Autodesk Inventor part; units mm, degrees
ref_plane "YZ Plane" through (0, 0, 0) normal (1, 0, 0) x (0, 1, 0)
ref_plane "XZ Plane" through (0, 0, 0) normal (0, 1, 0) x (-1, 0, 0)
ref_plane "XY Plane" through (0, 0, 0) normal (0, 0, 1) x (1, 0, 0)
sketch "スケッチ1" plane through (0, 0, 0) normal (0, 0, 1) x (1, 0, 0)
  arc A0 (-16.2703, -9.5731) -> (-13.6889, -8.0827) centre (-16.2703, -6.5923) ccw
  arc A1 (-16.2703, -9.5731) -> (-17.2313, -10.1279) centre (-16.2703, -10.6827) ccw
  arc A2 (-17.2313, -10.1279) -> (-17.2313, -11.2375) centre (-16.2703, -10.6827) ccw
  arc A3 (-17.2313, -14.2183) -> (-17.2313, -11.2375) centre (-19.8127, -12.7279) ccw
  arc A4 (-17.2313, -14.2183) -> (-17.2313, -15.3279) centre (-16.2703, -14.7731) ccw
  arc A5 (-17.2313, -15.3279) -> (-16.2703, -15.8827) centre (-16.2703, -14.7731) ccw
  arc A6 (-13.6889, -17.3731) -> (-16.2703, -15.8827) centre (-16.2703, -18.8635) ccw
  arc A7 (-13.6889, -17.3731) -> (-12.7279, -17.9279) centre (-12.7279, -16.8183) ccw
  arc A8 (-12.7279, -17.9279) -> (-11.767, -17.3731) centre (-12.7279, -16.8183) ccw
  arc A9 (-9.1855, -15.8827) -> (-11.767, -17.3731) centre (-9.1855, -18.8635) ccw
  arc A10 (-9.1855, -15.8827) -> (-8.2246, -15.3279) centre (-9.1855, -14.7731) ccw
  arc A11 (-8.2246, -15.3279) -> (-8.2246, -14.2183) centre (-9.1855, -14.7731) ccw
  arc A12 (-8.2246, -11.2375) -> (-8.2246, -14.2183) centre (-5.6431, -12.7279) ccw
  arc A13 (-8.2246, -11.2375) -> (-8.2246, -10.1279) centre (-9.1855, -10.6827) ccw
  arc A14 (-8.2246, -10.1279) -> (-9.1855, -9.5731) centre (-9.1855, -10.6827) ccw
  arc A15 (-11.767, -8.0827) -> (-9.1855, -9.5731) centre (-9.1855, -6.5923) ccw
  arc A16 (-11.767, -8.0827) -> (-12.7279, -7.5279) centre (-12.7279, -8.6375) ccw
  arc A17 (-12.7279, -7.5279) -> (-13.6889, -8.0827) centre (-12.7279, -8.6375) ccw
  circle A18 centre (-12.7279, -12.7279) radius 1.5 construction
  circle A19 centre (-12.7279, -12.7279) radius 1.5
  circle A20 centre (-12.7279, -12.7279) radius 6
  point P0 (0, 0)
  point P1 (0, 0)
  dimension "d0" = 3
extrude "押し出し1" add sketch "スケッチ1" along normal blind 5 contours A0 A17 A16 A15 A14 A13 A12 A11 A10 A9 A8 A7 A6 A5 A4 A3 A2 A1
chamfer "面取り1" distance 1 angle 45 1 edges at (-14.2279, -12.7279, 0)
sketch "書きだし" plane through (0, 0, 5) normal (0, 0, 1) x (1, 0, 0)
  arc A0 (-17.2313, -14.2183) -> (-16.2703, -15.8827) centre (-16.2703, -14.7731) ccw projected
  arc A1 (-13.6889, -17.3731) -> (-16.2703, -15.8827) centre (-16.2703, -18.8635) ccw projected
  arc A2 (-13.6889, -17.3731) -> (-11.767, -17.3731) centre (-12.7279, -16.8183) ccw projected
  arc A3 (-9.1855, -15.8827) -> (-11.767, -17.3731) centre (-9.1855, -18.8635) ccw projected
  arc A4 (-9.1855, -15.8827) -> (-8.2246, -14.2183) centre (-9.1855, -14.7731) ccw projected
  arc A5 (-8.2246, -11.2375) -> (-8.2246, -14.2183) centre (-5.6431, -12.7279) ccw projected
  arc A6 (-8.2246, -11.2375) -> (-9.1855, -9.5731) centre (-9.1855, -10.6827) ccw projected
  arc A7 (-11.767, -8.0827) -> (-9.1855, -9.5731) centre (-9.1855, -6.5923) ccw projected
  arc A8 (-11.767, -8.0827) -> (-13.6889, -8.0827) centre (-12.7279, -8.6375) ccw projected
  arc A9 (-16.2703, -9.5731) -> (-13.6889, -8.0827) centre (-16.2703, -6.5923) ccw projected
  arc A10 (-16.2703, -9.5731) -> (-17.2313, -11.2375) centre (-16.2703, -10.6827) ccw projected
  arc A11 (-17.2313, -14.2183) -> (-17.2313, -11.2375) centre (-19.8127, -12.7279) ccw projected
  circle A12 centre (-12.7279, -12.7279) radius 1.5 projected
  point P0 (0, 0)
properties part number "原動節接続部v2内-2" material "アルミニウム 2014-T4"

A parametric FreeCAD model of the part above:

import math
import FreeCAD as App
import Part
import Sketcher


def edges_at(feature, points):
    """Names of the edges that pass closest to the given points."""
    edges = feature.Shape.Edges
    near = lambda p: min(range(len(edges)), key=lambda i: edges[i].distToShape(Part.Vertex(*p))[0])
    return sorted({f"Edge{near(p) + 1}" for p in points})

doc = App.newDocument("Part")
body = doc.addObject("PartDesign::Body", "Body")

# Sketch on XY plane
sketch1 = body.newObject("Sketcher::SketchObject", "Sketch")
sketch1.AttachmentSupport = (doc.getObject("XY_Plane"), [""])
sketch1.MapMode = "FlatFace"
sketch1.addGeometry(Part.ArcOfCircle(Part.Circle(App.Vector(-16.2703, -6.5923, 0), App.Vector(0, 0, 1), 2.9808), math.radians(-90), math.radians(-30.000466)), False)
sketch1.addGeometry(Part.ArcOfCircle(Part.Circle(App.Vector(-16.2703, -10.6827, 0), App.Vector(0, 0, 1), 1.10965), math.radians(90), math.radians(150.001503)), False)
sketch1.addGeometry(Part.ArcOfCircle(Part.Circle(App.Vector(-16.2703, -10.6827, 0), App.Vector(0, 0, 1), 1.10965), math.radians(150.001503), math.radians(209.998497)), False)
sketch1.addGeometry(Part.ArcOfCircle(Part.Circle(App.Vector(-19.8127, -12.7279, 0), App.Vector(0, 0, 1), 2.980758), math.radians(-30.000466), math.radians(30.000466)), False)
sketch1.addGeometry(Part.ArcOfCircle(Part.Circle(App.Vector(-16.2703, -14.7731, 0), App.Vector(0, 0, 1), 1.10965), math.radians(150.001503), math.radians(209.998497)), False)
sketch1.addGeometry(Part.ArcOfCircle(Part.Circle(App.Vector(-16.2703, -14.7731, 0), App.Vector(0, 0, 1), 1.10965), math.radians(-150.001503), math.radians(-90)), False)
sketch1.addGeometry(Part.ArcOfCircle(Part.Circle(App.Vector(-16.2703, -18.8635, 0), App.Vector(0, 0, 1), 2.980758), math.radians(30.000466), math.radians(90)), False)
sketch1.addGeometry(Part.ArcOfCircle(Part.Circle(App.Vector(-12.7279, -16.8183, 0), App.Vector(0, 0, 1), 1.1096), math.radians(-150.001503), math.radians(-90)), False)
sketch1.addGeometry(Part.ArcOfCircle(Part.Circle(App.Vector(-12.7279, -16.8183, 0), App.Vector(0, 0, 1), 1.1096), math.radians(-90), math.radians(-30.001079)), False)
sketch1.addGeometry(Part.ArcOfCircle(Part.Circle(App.Vector(-9.1855, -18.8635, 0), App.Vector(0, 0, 1), 2.9808), math.radians(90), math.radians(150.000495)), False)
sketch1.addGeometry(Part.ArcOfCircle(Part.Circle(App.Vector(-9.1855, -14.7731, 0), App.Vector(0, 0, 1), 1.109564), math.radians(-90), math.radians(-30.001079)), False)
sketch1.addGeometry(Part.ArcOfCircle(Part.Circle(App.Vector(-9.1855, -14.7731, 0), App.Vector(0, 0, 1), 1.109564), math.radians(-30.001079), math.radians(30.001079)), False)
sketch1.addGeometry(Part.ArcOfCircle(Part.Circle(App.Vector(-5.6431, -12.7279, 0), App.Vector(0, 0, 1), 2.980845), math.radians(150.000495), math.radians(209.999505)), False)
sketch1.addGeometry(Part.ArcOfCircle(Part.Circle(App.Vector(-9.1855, -10.6827, 0), App.Vector(0, 0, 1), 1.109564), math.radians(-30.001079), math.radians(30.001079)), False)
sketch1.addGeometry(Part.ArcOfCircle(Part.Circle(App.Vector(-9.1855, -10.6827, 0), App.Vector(0, 0, 1), 1.109564), math.radians(30.001079), math.radians(90)), False)
sketch1.addGeometry(Part.ArcOfCircle(Part.Circle(App.Vector(-9.1855, -6.5923, 0), App.Vector(0, 0, 1), 2.980845), math.radians(-150.000495), math.radians(-90)), False)
sketch1.addGeometry(Part.ArcOfCircle(Part.Circle(App.Vector(-12.7279, -8.6375, 0), App.Vector(0, 0, 1), 1.1096), math.radians(30.001079), math.radians(90)), False)
sketch1.addGeometry(Part.ArcOfCircle(Part.Circle(App.Vector(-12.7279, -8.6375, 0), App.Vector(0, 0, 1), 1.1096), math.radians(90), math.radians(150.001503)), False)
sketch1.addGeometry(Part.Circle(App.Vector(-12.7279, -12.7279, 0), App.Vector(0, 0, 1), 1.5), False)
sketch1.addConstraint(Sketcher.Constraint("Tangent", 0, 1, 1, 1))
sketch1.addConstraint(Sketcher.Constraint("Tangent", 1, 2, 2, 1))
sketch1.addConstraint(Sketcher.Constraint("Tangent", 2, 2, 3, 2))
sketch1.addConstraint(Sketcher.Constraint("Tangent", 3, 1, 4, 1))
sketch1.addConstraint(Sketcher.Constraint("Tangent", 4, 2, 5, 1))
sketch1.addConstraint(Sketcher.Constraint("Tangent", 5, 2, 6, 2))
sketch1.addConstraint(Sketcher.Constraint("Tangent", 6, 1, 7, 1))
sketch1.addConstraint(Sketcher.Constraint("Tangent", 7, 2, 8, 1))
sketch1.addConstraint(Sketcher.Constraint("Tangent", 8, 2, 9, 2))
sketch1.addConstraint(Sketcher.Constraint("Tangent", 9, 1, 10, 1))
sketch1.addConstraint(Sketcher.Constraint("Tangent", 10, 2, 11, 1))
sketch1.addConstraint(Sketcher.Constraint("Tangent", 11, 2, 12, 2))
sketch1.addConstraint(Sketcher.Constraint("Tangent", 12, 1, 13, 1))
sketch1.addConstraint(Sketcher.Constraint("Tangent", 13, 2, 14, 1))
sketch1.addConstraint(Sketcher.Constraint("Tangent", 14, 2, 15, 2))
sketch1.addConstraint(Sketcher.Constraint("Tangent", 15, 1, 16, 1))
sketch1.addConstraint(Sketcher.Constraint("Tangent", 16, 2, 17, 1))
sketch1.addConstraint(Sketcher.Constraint("Tangent", 17, 2, 0, 2))
sketch1.addConstraint(Sketcher.Constraint("Equal", 1, 2))
sketch1.addConstraint(Sketcher.Constraint("Equal", 0, 3))
sketch1.addConstraint(Sketcher.Constraint("Equal", 2, 4))
sketch1.addConstraint(Sketcher.Constraint("Equal", 4, 5))
sketch1.addConstraint(Sketcher.Constraint("Equal", 3, 6))
sketch1.addConstraint(Sketcher.Constraint("Equal", 5, 7))
sketch1.addConstraint(Sketcher.Constraint("Equal", 7, 8))
sketch1.addConstraint(Sketcher.Constraint("Equal", 6, 9))
sketch1.addConstraint(Sketcher.Constraint("Equal", 8, 10))
sketch1.addConstraint(Sketcher.Constraint("Equal", 10, 11))
sketch1.addConstraint(Sketcher.Constraint("Equal", 9, 12))
sketch1.addConstraint(Sketcher.Constraint("Equal", 11, 13))
sketch1.addConstraint(Sketcher.Constraint("Equal", 13, 14))
sketch1.addConstraint(Sketcher.Constraint("Equal", 12, 15))
sketch1.addConstraint(Sketcher.Constraint("Equal", 14, 16))
sketch1.addConstraint(Sketcher.Constraint("Equal", 16, 17))
sketch1.addConstraint(Sketcher.Constraint("Horizontal", 6, 3, 9, 3))
sketch1.addConstraint(Sketcher.Constraint("Horizontal", 3, 3, 12, 3))
sketch1.addConstraint(Sketcher.Constraint("Horizontal", 2, 3, 13, 3))
sketch1.addConstraint(Sketcher.Constraint("Horizontal", 12, 3, 18, 3))
sketch1.addConstraint(Sketcher.Constraint("Horizontal", 4, 2, 10, 2))
sketch1.addConstraint(Sketcher.Constraint("Horizontal", 1, 2, 13, 2))
sketch1.addConstraint(Sketcher.Constraint("Vertical", 0, 3, 1, 3))
sketch1.addConstraint(Sketcher.Constraint("Vertical", 2, 3, 4, 3))
sketch1.addConstraint(Sketcher.Constraint("Vertical", 5, 3, 6, 3))
sketch1.addConstraint(Sketcher.Constraint("Vertical", 9, 3, 10, 3))
sketch1.addConstraint(Sketcher.Constraint("Vertical", 14, 3, 15, 3))
sketch1.addConstraint(Sketcher.Constraint("Vertical", 17, 3, 18, 3))
sketch1.addConstraint(Sketcher.Constraint("Vertical", 1, 2, 2, 2))
sketch1.addConstraint(Sketcher.Constraint("Vertical", 3, 1, 4, 2))
sketch1.addConstraint(Sketcher.Constraint("Vertical", 18, 3, 7, 2))
sketch1.addConstraint(Sketcher.Constraint("Vertical", 7, 2, 16, 2))
sketch1.addConstraint(Sketcher.Constraint("Diameter", 18, 3.0))
sketch1.addConstraint(Sketcher.Constraint("Radius", 0, 2.9808))
sketch1.addConstraint(Sketcher.Constraint("Radius", 1, 1.1097))
sketch1.addConstraint(Sketcher.Constraint("DistanceY", 3, 3, 1, 2, 2.6))
sketch1.addConstraint(Sketcher.Constraint("DistanceY", 6, 1, 4, 3, 2.6))
sketch1.addConstraint(Sketcher.Constraint("DistanceY", 3, 3, -1, 1, 12.728))
sketch1.addConstraint(Sketcher.Constraint("DistanceX", 7, 3, -1, 1, 12.728))
pad1 = body.newObject("PartDesign::Pad", "Pad")
pad1.Profile = sketch1
pad1.Length = 5
doc.recompute()

chamfer = body.newObject("PartDesign::Chamfer", "Chamfer")
chamfer.Base = (pad1, edges_at(pad1, [(-14.228, -12.728, 0)]))
chamfer.Size = 1

doc.recompute()
